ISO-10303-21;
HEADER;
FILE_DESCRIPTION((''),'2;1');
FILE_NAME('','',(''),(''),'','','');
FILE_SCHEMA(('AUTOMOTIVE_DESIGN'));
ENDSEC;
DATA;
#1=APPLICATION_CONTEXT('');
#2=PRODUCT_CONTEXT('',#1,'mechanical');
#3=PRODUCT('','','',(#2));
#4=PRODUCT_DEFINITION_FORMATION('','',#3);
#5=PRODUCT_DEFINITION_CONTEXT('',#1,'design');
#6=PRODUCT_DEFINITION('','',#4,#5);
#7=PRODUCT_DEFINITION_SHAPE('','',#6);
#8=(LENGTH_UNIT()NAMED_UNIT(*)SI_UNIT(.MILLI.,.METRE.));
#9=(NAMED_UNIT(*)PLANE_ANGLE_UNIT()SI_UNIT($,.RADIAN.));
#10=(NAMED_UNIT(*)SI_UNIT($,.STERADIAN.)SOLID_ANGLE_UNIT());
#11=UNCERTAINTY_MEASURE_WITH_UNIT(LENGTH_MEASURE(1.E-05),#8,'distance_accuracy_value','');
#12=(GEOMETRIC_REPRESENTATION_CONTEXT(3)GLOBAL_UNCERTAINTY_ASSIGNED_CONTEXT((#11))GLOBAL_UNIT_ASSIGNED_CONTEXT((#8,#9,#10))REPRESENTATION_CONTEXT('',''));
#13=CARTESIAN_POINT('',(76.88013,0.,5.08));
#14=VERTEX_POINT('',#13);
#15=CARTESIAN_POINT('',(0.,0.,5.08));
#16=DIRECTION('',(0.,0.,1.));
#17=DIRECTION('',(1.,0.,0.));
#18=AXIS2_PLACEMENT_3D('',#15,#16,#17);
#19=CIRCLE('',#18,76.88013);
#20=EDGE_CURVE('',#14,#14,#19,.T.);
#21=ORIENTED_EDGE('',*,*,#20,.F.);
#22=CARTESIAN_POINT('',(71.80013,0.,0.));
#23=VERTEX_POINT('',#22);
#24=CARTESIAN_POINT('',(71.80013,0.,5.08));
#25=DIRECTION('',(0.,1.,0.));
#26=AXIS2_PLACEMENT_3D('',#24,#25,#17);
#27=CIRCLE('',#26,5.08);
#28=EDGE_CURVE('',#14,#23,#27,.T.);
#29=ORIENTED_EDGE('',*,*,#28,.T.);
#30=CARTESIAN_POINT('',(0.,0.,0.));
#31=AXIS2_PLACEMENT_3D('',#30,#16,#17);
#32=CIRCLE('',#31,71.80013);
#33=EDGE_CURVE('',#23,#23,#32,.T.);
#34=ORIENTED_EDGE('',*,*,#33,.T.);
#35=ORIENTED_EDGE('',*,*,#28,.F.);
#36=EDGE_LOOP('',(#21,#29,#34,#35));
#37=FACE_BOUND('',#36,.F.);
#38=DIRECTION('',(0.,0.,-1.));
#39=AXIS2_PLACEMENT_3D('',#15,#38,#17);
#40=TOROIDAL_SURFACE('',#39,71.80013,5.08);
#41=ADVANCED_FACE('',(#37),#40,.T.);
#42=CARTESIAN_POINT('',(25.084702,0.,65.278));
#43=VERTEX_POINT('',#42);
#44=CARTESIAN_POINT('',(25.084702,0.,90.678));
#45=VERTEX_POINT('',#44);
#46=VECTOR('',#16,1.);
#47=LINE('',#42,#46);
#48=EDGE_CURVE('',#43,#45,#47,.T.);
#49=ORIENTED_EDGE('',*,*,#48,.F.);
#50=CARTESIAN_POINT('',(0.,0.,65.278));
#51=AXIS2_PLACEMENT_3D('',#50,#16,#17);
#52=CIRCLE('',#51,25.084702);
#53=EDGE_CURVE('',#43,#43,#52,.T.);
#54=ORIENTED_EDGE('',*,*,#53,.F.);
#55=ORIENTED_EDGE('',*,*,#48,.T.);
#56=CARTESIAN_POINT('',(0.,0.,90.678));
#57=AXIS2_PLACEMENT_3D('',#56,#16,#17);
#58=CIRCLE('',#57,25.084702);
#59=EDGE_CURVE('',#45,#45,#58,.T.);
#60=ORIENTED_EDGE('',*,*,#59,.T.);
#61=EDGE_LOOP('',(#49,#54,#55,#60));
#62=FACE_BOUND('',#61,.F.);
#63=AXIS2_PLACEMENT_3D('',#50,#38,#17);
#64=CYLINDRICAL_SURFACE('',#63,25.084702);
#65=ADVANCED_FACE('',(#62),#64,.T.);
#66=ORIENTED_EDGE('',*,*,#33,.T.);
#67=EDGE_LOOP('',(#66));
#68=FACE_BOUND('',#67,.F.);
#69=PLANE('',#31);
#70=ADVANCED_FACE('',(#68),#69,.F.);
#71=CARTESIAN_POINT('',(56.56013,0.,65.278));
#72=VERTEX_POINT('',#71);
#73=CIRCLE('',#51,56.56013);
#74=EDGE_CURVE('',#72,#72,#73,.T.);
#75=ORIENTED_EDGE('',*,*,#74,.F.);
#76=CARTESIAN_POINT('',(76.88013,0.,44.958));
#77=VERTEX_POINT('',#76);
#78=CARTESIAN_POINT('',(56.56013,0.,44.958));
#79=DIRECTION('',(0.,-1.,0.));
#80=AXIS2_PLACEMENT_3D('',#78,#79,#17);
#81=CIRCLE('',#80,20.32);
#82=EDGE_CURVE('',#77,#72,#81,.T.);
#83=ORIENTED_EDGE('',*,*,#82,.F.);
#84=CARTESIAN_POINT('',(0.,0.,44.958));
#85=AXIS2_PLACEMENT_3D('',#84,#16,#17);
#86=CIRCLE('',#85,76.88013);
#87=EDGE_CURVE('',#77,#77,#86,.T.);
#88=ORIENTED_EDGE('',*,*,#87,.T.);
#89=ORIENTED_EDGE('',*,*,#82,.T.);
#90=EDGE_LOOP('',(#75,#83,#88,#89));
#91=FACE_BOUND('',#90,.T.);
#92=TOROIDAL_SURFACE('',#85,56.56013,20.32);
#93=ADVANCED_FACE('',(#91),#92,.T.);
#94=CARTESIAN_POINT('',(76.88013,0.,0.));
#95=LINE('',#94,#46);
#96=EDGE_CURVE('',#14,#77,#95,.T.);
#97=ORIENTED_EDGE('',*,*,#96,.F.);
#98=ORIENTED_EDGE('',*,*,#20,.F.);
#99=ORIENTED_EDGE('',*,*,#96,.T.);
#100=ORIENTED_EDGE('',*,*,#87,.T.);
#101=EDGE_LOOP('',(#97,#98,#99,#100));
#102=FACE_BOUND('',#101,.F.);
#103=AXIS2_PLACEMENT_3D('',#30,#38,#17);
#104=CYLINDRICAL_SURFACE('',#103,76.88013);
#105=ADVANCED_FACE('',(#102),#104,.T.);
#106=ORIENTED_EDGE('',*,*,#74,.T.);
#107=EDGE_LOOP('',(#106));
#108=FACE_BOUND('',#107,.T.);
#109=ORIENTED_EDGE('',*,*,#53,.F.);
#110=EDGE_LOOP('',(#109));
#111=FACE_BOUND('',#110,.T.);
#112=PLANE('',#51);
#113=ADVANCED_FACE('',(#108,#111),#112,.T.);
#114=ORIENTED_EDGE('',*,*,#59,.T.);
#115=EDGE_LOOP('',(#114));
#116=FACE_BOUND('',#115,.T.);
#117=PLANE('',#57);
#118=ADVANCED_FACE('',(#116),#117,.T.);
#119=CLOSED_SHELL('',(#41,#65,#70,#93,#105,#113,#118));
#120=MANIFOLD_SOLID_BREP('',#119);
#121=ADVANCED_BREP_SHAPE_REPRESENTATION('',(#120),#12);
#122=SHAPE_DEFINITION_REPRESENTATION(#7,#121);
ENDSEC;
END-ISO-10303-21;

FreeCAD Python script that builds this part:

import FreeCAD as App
import Part
import Sketcher

V = App.Vector
Q = App.Units.Quantity


def edges_at(feature, points):
    """Names of the edges that pass closest to the given points."""
    edges = feature.Shape.Edges
    near = lambda p: min(range(len(edges)), key=lambda i: edges[i].distToShape(Part.Vertex(*p))[0])
    return sorted({f"Edge{near(p) + 1}" for p in points})

doc = App.newDocument("Part")
body = doc.addObject("PartDesign::Body", "Body")

sketch1 = body.newObject("Sketcher::SketchObject", "Sketch")
sketch1.AttachmentSupport = (doc.getObject("XY_Plane"), [""])
sketch1.MapMode = "FlatFace"
sketch1.addGeometry(Part.Circle(V(0, 0, 0), V(0, 0, 1), 76.88013), False)
sketch1.addConstraint([
    Sketcher.Constraint("Coincident", 0, 3, -1, 1),
    Sketcher.Constraint("Diameter", 0, Q("153.76026 mm")),
])
pad1 = body.newObject("PartDesign::Pad", "Pad")
pad1.Profile = sketch1
pad1.Length = Q("2.57 in")

sketch2 = body.newObject("Sketcher::SketchObject", "Sketch001")
sketch2.AttachmentSupport = (doc.getObject("XY_Plane"), [""])
sketch2.MapMode = "FlatFace"
sketch2.AttachmentOffset = App.Placement(V(0, 0, 2.57 * 25.4), App.Rotation())
sketch2.addGeometry(Part.Circle(V(0, 0, 0), V(0, 0, 1), 25.084702), False)
sketch2.addConstraint([
    Sketcher.Constraint("Coincident", 0, 3, -1, 1),
    Sketcher.Constraint("Diameter", 0, Q("50.169404 mm")),
])
pad2 = body.newObject("PartDesign::Pad", "Pad001")
pad2.Profile = sketch2
pad2.Length = Q("1 in")
doc.recompute()

fillet = body.newObject("PartDesign::Fillet", "Fillet")
fillet.Base = (pad2, edges_at(pad2, [(-76.88, 0, 0)]))
fillet.Radius = Q("0.2 in")
doc.recompute()

fillet2 = body.newObject("PartDesign::Fillet", "Fillet001")
fillet2.Base = (fillet, edges_at(fillet, [(-76.88, 0, 65.278)]))
fillet2.Radius = Q("0.8 in")

doc.recompute()
